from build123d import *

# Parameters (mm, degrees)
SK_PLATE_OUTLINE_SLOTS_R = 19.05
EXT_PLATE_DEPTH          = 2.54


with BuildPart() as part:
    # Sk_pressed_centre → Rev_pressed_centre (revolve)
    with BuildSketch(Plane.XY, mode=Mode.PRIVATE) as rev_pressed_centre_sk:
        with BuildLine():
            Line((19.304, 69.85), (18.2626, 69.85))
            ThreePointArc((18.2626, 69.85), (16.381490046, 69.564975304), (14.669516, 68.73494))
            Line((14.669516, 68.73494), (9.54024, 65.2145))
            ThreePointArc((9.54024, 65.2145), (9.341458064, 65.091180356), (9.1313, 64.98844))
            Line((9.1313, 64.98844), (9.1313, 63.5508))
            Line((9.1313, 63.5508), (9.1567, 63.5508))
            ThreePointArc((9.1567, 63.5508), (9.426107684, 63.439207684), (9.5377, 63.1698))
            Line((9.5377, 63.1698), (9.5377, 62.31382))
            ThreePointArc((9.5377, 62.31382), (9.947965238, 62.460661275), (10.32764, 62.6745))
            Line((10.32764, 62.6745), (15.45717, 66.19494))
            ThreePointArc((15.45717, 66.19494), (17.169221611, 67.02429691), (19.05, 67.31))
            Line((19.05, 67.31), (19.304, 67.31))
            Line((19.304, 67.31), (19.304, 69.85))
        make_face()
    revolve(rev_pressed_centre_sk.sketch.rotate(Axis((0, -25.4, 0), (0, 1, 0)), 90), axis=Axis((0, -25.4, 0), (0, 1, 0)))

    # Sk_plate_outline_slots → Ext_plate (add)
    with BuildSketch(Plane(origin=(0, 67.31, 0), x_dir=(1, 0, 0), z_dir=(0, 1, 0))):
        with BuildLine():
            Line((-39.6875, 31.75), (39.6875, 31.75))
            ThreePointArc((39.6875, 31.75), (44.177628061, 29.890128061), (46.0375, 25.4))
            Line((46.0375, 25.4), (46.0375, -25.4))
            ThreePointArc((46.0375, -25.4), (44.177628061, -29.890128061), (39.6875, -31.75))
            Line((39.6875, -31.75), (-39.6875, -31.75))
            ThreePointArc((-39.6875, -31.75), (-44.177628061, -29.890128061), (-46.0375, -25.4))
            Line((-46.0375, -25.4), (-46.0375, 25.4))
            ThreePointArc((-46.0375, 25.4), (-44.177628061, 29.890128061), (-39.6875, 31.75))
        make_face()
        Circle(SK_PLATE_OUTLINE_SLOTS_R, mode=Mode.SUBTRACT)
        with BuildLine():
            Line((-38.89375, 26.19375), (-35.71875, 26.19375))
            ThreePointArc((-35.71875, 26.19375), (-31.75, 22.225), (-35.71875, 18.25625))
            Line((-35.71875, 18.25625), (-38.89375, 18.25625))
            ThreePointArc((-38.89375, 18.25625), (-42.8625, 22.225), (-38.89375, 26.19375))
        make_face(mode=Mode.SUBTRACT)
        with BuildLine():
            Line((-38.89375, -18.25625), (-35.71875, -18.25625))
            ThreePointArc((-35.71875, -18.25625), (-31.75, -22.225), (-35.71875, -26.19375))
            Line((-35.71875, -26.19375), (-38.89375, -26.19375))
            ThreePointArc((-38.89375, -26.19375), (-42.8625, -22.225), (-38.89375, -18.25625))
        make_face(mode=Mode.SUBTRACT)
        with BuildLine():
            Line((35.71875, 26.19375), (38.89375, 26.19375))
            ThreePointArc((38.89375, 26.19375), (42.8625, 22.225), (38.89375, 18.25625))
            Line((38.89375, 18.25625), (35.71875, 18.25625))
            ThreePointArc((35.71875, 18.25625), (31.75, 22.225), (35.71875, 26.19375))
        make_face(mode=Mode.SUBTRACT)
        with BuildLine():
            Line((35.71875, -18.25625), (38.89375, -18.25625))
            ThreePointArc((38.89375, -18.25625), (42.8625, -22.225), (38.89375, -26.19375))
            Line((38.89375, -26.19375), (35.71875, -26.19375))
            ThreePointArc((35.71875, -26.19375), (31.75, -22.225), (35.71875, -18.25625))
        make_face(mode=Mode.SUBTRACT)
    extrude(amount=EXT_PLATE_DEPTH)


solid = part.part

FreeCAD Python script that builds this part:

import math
import FreeCAD as App
import Part
import Sketcher
Q = App.Units.Quantity

doc = App.newDocument("Part")
body = doc.addObject("PartDesign::Body", "Body")

# Sketch on XY plane
sketch1 = body.newObject("Sketcher::SketchObject", "Sketch")
sketch1.AttachmentSupport = (doc.getObject("XY_Plane"), [""])
sketch1.MapMode = "FlatFace"
sketch1.addGeometry(Part.LineSegment(App.Vector(19.304, 69.85, 0), App.Vector(18.263, 69.85, 0)), False)
sketch1.addGeometry(Part.ArcOfCircle(Part.Circle(App.Vector(18.262, 63.507, 0), App.Vector(0, 0, 1), 6.343), math.radians(90), math.radians(124)), False)
sketch1.addGeometry(Part.LineSegment(App.Vector(14.67, 68.735, 0), App.Vector(9.54, 65.215, 0)), False)
sketch1.addGeometry(Part.ArcOfCircle(Part.Circle(App.Vector(8.216, 67.128, 0), App.Vector(0, 0, 1), 2.327), math.radians(-66.83), math.radians(-55.3)), False)
sketch1.addGeometry(Part.LineSegment(App.Vector(9.131, 64.988, 0), App.Vector(9.131, 63.551, 0)), False)
sketch1.addGeometry(Part.LineSegment(App.Vector(9.131, 63.551, 0), App.Vector(9.157, 63.551, 0)), False)
sketch1.addGeometry(Part.ArcOfCircle(Part.Circle(App.Vector(9.157, 63.17, 0), App.Vector(0, 0, 1), 0.381), math.radians(0), math.radians(90)), False)
sketch1.addGeometry(Part.LineSegment(App.Vector(9.538, 63.17, 0), App.Vector(9.538, 62.314, 0)), False)
sketch1.addGeometry(Part.ArcOfCircle(Part.Circle(App.Vector(8.877, 64.806, 0), App.Vector(0, 0, 1), 2.578), math.radians(-75.15), math.radians(-55.76)), False)
sketch1.addGeometry(Part.LineSegment(App.Vector(10.328, 62.675, 0), App.Vector(15.457, 66.195, 0)), False)
sketch1.addGeometry(Part.ArcOfCircle(Part.Circle(App.Vector(19.054, 60.952, 0), App.Vector(0, 0, 1), 6.358), math.radians(90), math.radians(124)), False)
sketch1.addGeometry(Part.LineSegment(App.Vector(19.05, 67.31, 0), App.Vector(19.304, 67.31, 0)), False)
sketch1.addGeometry(Part.LineSegment(App.Vector(19.304, 67.31, 0), App.Vector(19.304, 69.85, 0)), False)
sketch1.addConstraint(Sketcher.Constraint("Coincident", 0, 2, 1, 1))
sketch1.addConstraint(Sketcher.Constraint("Coincident", 1, 2, 2, 1))
sketch1.addConstraint(Sketcher.Constraint("Coincident", 2, 2, 3, 2))
sketch1.addConstraint(Sketcher.Constraint("Coincident", 3, 1, 4, 1))
sketch1.addConstraint(Sketcher.Constraint("Coincident", 4, 2, 5, 1))
sketch1.addConstraint(Sketcher.Constraint("Tangent", 5, 2, 6, 2))
sketch1.addConstraint(Sketcher.Constraint("Tangent", 6, 1, 7, 1))
sketch1.addConstraint(Sketcher.Constraint("Coincident", 7, 2, 8, 1))
sketch1.addConstraint(Sketcher.Constraint("Coincident", 8, 2, 9, 1))
sketch1.addConstraint(Sketcher.Constraint("Coincident", 9, 2, 10, 2))
sketch1.addConstraint(Sketcher.Constraint("Coincident", 10, 1, 11, 1))
sketch1.addConstraint(Sketcher.Constraint("Coincident", 11, 2, 12, 1))
sketch1.addConstraint(Sketcher.Constraint("Coincident", 12, 2, 0, 1))
sketch1.addConstraint(Sketcher.Constraint("Horizontal", 0))
sketch1.addConstraint(Sketcher.Constraint("Vertical", 4))
sketch1.addConstraint(Sketcher.Constraint("Horizontal", 5))
sketch1.addConstraint(Sketcher.Constraint("Vertical", 7))
sketch1.addConstraint(Sketcher.Constraint("Horizontal", 11))
sketch1.addConstraint(Sketcher.Constraint("Vertical", 12))
sketch1.addConstraint(Sketcher.Constraint("DistanceY", 12, 1, 12, 2, Q("0.1 in")))
sketch1.addConstraint(Sketcher.Constraint("Radius", 6, Q("0.015 in")))
sketch1.addConstraint(Sketcher.Constraint("DistanceX", 11, 1, 11, 2, Q("0.01 in")))
sketch1.addConstraint(Sketcher.Constraint("DistanceY", 9, 2, 1, 2, Q("0.1 in")))
sketch1.addConstraint(Sketcher.Constraint("DistanceX", 0, 2, 0, 1, Q("0.041 in")))
sketch1.addConstraint(Sketcher.Constraint("DistanceX", 5, 1, 5, 2, Q("0.001 in")))
sketch1.addConstraint(Sketcher.Constraint("DistanceY", -1, 1, 0, 2, Q("2.75 in")))
sketch1.addConstraint(Sketcher.Constraint("DistanceX", -1, 1, 10, 1, Q("0.75 in")))
sketch1.addConstraint(Sketcher.Constraint("DistanceY", 4, 2, 4, 1, Q("0.0566 in")))
sketch1.addConstraint(Sketcher.Constraint("DistanceY", 7, 2, 7, 1, Q("0.0337 in")))
sketch1.addConstraint(Sketcher.Constraint("DistanceY", -1, 1, 6, 3, Q("2.487 in")))
sketch1.addConstraint(Sketcher.Constraint("Radius", 8, Q("2.578112 mm")))
sketch1.addConstraint(Sketcher.Constraint("DistanceX", -1, 1, 6, 3, Q("0.3605 in")))
sketch1.addConstraint(Sketcher.Constraint("DistanceY", -1, 1, 1, 2, Q("2.7061 in")))
sketch1.addConstraint(Sketcher.Constraint("DistanceX", -1, 1, 2, 2, Q("0.3756 in")))
sketch1.addConstraint(Sketcher.Constraint("DistanceY", -1, 1, 2, 2, Q("2.5675 in")))
sketch1.addConstraint(Sketcher.Constraint("DistanceX", -1, 1, 8, 2, Q("0.4066 in")))
sketch1.addConstraint(Sketcher.Constraint("DistanceY", -1, 1, 8, 2, Q("2.4675 in")))
sketch1.addConstraint(Sketcher.Constraint("Radius", 1, Q("6.343296 mm")))
sketch1.addConstraint(Sketcher.Constraint("Radius", 3, Q("2.327177 mm")))
sketch1.addConstraint(Sketcher.Constraint("Radius", 10, Q("6.357577 mm")))
sketch1.addConstraint(Sketcher.Constraint("Distance", 2, Q("6.221171 mm")))
sketch1.addConstraint(Sketcher.Constraint("Distance", 9, Q("6.221381 mm")))
revolution = body.newObject("PartDesign::Revolution", "Revolution")
revolution.Profile = sketch1
revolution.ReferenceAxis = (sketch1, ["V_Axis"])
revolution.Angle = 360

# Sketch on XZ plane
sketch2 = body.newObject("Sketcher::SketchObject", "Sketch001")
sketch2.AttachmentSupport = (doc.getObject("XZ_Plane"), [""])
sketch2.MapMode = "FlatFace"
sketch2.AttachmentOffset = App.Placement(App.Vector(0, 0, -2.65 * 25.4), App.Rotation())
sketch2.addGeometry(Part.LineSegment(App.Vector(39.7, -31.8, 0), App.Vector(-39.7, -31.8, 0)), False)
sketch2.addGeometry(Part.ArcOfCircle(Part.Circle(App.Vector(-39.7, -25.4, 0), App.Vector(0, 0, 1), 6.3), math.radians(180), math.radians(270)), False)
sketch2.addGeometry(Part.LineSegment(App.Vector(-46, -25.4, 0), App.Vector(-46, 25.4, 0)), False)
sketch2.addGeometry(Part.ArcOfCircle(Part.Circle(App.Vector(-39.7, 25.4, 0), App.Vector(0, 0, 1), 6.3), math.radians(90), math.radians(180)), False)
sketch2.addGeometry(Part.LineSegment(App.Vector(-39.7, 31.8, 0), App.Vector(39.7, 31.8, 0)), False)
sketch2.addGeometry(Part.ArcOfCircle(Part.Circle(App.Vector(39.7, 25.4, 0), App.Vector(0, 0, 1), 6.3), math.radians(0), math.radians(90)), False)
sketch2.addGeometry(Part.LineSegment(App.Vector(46, 25.4, 0), App.Vector(46, -25.4, 0)), False)
sketch2.addGeometry(Part.ArcOfCircle(Part.Circle(App.Vector(39.7, -25.4, 0), App.Vector(0, 0, 1), 6.3), math.radians(-90), math.radians(0)), False)
sketch2.addGeometry(Part.LineSegment(App.Vector(35.7, 18.3, 0), App.Vector(38.9, 18.3, 0)), False)
sketch2.addGeometry(Part.ArcOfCircle(Part.Circle(App.Vector(38.9, 22.2, 0), App.Vector(0, 0, 1), 4), math.radians(-90), math.radians(90)), False)
sketch2.addGeometry(Part.LineSegment(App.Vector(38.9, 26.2, 0), App.Vector(35.7, 26.2, 0)), False)
sketch2.addGeometry(Part.ArcOfCircle(Part.Circle(App.Vector(35.7, 22.2, 0), App.Vector(0, 0, 1), 4), math.radians(90), math.radians(270)), False)
sketch2.addGeometry(Part.LineSegment(App.Vector(-38.9, 18.3, 0), App.Vector(-35.7, 18.3, 0)), False)
sketch2.addGeometry(Part.ArcOfCircle(Part.Circle(App.Vector(-35.7, 22.2, 0), App.Vector(0, 0, 1), 4), math.radians(-90), math.radians(90)), False)
sketch2.addGeometry(Part.LineSegment(App.Vector(-35.7, 26.2, 0), App.Vector(-38.9, 26.2, 0)), False)
sketch2.addGeometry(Part.ArcOfCircle(Part.Circle(App.Vector(-38.9, 22.2, 0), App.Vector(0, 0, 1), 4), math.radians(90), math.radians(270)), False)
sketch2.addGeometry(Part.LineSegment(App.Vector(35.7, -26.2, 0), App.Vector(38.9, -26.2, 0)), False)
sketch2.addGeometry(Part.ArcOfCircle(Part.Circle(App.Vector(38.9, -22.2, 0), App.Vector(0, 0, 1), 4), math.radians(-90), math.radians(90)), False)
sketch2.addGeometry(Part.LineSegment(App.Vector(38.9, -18.3, 0), App.Vector(35.7, -18.3, 0)), False)
sketch2.addGeometry(Part.ArcOfCircle(Part.Circle(App.Vector(35.7, -22.2, 0), App.Vector(0, 0, 1), 4), math.radians(90), math.radians(270)), False)
sketch2.addGeometry(Part.Circle(App.Vector(0, 0, 0), App.Vector(0, 0, 1), 19.1), False)
sketch2.addGeometry(Part.LineSegment(App.Vector(-38.9, -26.2, 0), App.Vector(-35.7, -26.2, 0)), False)
sketch2.addGeometry(Part.ArcOfCircle(Part.Circle(App.Vector(-35.7, -22.2, 0), App.Vector(0, 0, 1), 4), math.radians(-90), math.radians(90)), False)
sketch2.addGeometry(Part.LineSegment(App.Vector(-35.7, -18.3, 0), App.Vector(-38.9, -18.3, 0)), False)
sketch2.addGeometry(Part.ArcOfCircle(Part.Circle(App.Vector(-38.9, -22.2, 0), App.Vector(0, 0, 1), 4), math.radians(90), math.radians(270)), False)
sketch2.addConstraint(Sketcher.Constraint("Tangent", 0, 2, 1, 2))
sketch2.addConstraint(Sketcher.Constraint("Tangent", 1, 1, 2, 1))
sketch2.addConstraint(Sketcher.Constraint("Tangent", 2, 2, 3, 2))
sketch2.addConstraint(Sketcher.Constraint("Tangent", 3, 1, 4, 1))
sketch2.addConstraint(Sketcher.Constraint("Tangent", 4, 2, 5, 2))
sketch2.addConstraint(Sketcher.Constraint("Tangent", 5, 1, 6, 1))
sketch2.addConstraint(Sketcher.Constraint("Tangent", 6, 2, 7, 2))
sketch2.addConstraint(Sketcher.Constraint("Tangent", 7, 1, 0, 1))
sketch2.addConstraint(Sketcher.Constraint("Tangent", 8, 2, 9, 1))
sketch2.addConstraint(Sketcher.Constraint("Tangent", 9, 2, 10, 1))
sketch2.addConstraint(Sketcher.Constraint("Tangent", 10, 2, 11, 1))
sketch2.addConstraint(Sketcher.Constraint("Tangent", 11, 2, 8, 1))
sketch2.addConstraint(Sketcher.Constraint("Tangent", 12, 2, 13, 1))
sketch2.addConstraint(Sketcher.Constraint("Tangent", 13, 2, 14, 1))
sketch2.addConstraint(Sketcher.Constraint("Tangent", 14, 2, 15, 1))
sketch2.addConstraint(Sketcher.Constraint("Tangent", 15, 2, 12, 1))
sketch2.addConstraint(Sketcher.Constraint("Tangent", 16, 2, 17, 1))
sketch2.addConstraint(Sketcher.Constraint("Tangent", 17, 2, 18, 1))
sketch2.addConstraint(Sketcher.Constraint("Tangent", 18, 2, 19, 1))
sketch2.addConstraint(Sketcher.Constraint("Tangent", 19, 2, 16, 1))
sketch2.addConstraint(Sketcher.Constraint("Tangent", 21, 2, 22, 1))
sketch2.addConstraint(Sketcher.Constraint("Tangent", 22, 2, 23, 1))
sketch2.addConstraint(Sketcher.Constraint("Tangent", 23, 2, 24, 1))
sketch2.addConstraint(Sketcher.Constraint("Tangent", 24, 2, 21, 1))
sketch2.addConstraint(Sketcher.Constraint("Horizontal", 0))
sketch2.addConstraint(Sketcher.Constraint("Vertical", 2))
sketch2.addConstraint(Sketcher.Constraint("Horizontal", 4))
sketch2.addConstraint(Sketcher.Constraint("Vertical", 6))
sketch2.addConstraint(Sketcher.Constraint("Horizontal", 8))
sketch2.addConstraint(Sketcher.Constraint("Horizontal", 10))
sketch2.addConstraint(Sketcher.Constraint("Horizontal", 12))
sketch2.addConstraint(Sketcher.Constraint("Horizontal", 14))
sketch2.addConstraint(Sketcher.Constraint("Horizontal", 16))
sketch2.addConstraint(Sketcher.Constraint("Horizontal", 18))
sketch2.addConstraint(Sketcher.Constraint("Horizontal", 21))
sketch2.addConstraint(Sketcher.Constraint("Horizontal", 23))
sketch2.addConstraint(Sketcher.Constraint("Coincident", 20, 3, -1, 1))
sketch2.addConstraint(Sketcher.Constraint("Equal", 1, 3))
sketch2.addConstraint(Sketcher.Constraint("Equal", 3, 5))
sketch2.addConstraint(Sketcher.Constraint("Equal", 5, 7))
sketch2.addConstraint(Sketcher.Constraint("Equal", 11, 13))
sketch2.addConstraint(Sketcher.Constraint("Equal", 15, 17))
sketch2.addConstraint(Sketcher.Constraint("Equal", 19, 22))
sketch2.addConstraint(Sketcher.Constraint("Symmetric", 1, 3, 5, 3, -1, 1))
sketch2.addConstraint(Sketcher.Constraint("Symmetric", 15, 3, 17, 3, -1, 1))
sketch2.addConstraint(Sketcher.Constraint("Symmetric", 11, 3, 22, 3, -1, 1))
sketch2.addConstraint(Sketcher.Constraint("Symmetric", 11, 3, 13, 3, -2))
sketch2.addConstraint(Sketcher.Constraint("Vertical", 9, 3, 17, 3))
sketch2.addConstraint(Sketcher.Constraint("Vertical", 11, 3, 19, 3))
sketch2.addConstraint(Sketcher.Constraint("Vertical", 15, 3, 24, 3))
sketch2.addConstraint(Sketcher.Constraint("Diameter", 20, Q("1.5 in")))
sketch2.addConstraint(Sketcher.Constraint("DistanceY", 2, 1, 2, 2, Q("2 in")))
sketch2.addConstraint(Sketcher.Constraint("Radius", 1, Q("0.25 in")))
sketch2.addConstraint(Sketcher.Constraint("Radius", 9, Q("0.15625 in")))
sketch2.addConstraint(Sketcher.Constraint("DistanceX", 0, 2, 0, 1, Q("3.125 in")))
sketch2.addConstraint(Sketcher.Constraint("DistanceX", 8, 1, 8, 2, Q("0.125 in")))
sketch2.addConstraint(Sketcher.Constraint("DistanceY", 17, 3, 9, 3, Q("1.75 in")))
sketch2.addConstraint(Sketcher.Constraint("DistanceX", -1, 1, 9, 3, Q("1.53125 in")))
pad1 = body.newObject("PartDesign::Pad", "Pad")
pad1.Profile = sketch2
pad1.Length = Q("0.1 in")
pad1.Reversed = True

doc.recompute()
